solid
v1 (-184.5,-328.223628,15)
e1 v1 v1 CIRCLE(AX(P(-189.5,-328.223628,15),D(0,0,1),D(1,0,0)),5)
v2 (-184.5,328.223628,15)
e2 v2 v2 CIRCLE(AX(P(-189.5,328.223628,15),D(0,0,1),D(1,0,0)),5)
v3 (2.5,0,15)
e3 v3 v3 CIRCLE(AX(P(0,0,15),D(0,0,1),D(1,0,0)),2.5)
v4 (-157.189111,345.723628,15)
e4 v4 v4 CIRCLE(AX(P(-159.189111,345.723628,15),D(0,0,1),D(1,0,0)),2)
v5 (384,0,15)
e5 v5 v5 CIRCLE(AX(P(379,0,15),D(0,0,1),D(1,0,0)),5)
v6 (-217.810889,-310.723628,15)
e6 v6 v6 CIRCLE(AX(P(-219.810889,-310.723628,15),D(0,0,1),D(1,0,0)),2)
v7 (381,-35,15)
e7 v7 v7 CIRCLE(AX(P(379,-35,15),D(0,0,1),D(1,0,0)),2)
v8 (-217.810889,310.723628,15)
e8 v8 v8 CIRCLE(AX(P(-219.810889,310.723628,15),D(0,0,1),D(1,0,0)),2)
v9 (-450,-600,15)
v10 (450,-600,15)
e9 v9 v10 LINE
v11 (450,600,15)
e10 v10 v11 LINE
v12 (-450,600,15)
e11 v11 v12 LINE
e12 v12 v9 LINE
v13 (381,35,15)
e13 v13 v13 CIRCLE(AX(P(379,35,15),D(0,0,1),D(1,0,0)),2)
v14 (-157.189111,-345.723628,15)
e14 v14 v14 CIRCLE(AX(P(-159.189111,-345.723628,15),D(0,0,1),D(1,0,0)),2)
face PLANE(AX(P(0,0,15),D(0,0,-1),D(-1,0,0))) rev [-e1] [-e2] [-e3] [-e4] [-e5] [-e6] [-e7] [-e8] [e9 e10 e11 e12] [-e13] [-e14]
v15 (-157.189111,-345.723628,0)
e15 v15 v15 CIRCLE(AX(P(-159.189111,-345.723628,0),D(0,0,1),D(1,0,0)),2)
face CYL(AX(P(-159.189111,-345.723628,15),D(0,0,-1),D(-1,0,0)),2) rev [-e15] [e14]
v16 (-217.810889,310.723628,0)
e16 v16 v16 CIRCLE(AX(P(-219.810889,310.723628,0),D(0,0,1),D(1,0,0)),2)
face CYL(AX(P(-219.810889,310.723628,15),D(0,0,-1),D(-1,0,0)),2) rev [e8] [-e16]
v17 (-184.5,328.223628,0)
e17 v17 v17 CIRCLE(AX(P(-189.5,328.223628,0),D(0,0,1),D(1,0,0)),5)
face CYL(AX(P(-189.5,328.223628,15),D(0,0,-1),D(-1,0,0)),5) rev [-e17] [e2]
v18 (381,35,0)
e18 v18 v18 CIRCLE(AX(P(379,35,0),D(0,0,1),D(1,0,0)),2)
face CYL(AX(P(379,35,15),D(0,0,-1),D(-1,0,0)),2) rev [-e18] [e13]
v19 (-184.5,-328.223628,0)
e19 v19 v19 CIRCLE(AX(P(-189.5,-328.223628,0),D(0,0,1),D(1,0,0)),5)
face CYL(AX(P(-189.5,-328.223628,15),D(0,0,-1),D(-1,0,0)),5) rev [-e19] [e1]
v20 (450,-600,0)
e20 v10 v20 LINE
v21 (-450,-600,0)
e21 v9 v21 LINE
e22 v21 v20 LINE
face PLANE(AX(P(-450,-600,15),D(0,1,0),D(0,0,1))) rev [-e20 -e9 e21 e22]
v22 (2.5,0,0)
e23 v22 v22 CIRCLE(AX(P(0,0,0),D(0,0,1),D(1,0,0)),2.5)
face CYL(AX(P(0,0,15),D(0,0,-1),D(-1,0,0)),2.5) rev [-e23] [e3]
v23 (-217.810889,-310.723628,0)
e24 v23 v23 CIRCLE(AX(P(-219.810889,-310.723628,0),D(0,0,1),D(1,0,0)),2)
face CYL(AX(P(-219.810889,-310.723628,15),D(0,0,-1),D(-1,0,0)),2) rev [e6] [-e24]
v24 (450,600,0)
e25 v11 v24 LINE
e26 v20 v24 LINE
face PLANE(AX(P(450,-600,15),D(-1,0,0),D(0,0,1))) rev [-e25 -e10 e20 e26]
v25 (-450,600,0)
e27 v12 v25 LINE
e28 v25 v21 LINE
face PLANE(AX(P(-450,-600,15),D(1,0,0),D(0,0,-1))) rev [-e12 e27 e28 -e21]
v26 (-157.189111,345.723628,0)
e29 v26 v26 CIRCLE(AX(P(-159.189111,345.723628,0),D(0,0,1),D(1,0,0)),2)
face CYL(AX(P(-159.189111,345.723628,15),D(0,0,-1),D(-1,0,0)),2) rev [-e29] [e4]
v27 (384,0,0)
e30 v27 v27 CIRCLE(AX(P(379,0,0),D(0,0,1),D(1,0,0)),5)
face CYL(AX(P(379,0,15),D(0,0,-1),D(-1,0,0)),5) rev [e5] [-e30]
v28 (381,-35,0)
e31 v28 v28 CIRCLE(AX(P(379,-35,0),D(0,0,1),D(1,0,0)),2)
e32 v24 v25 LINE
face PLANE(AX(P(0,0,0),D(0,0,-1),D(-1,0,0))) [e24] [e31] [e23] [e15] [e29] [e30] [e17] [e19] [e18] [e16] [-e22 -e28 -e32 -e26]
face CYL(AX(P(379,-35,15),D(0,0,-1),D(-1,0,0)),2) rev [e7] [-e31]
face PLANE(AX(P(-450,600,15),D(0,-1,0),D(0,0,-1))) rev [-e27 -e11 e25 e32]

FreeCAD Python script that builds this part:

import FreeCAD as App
import Part
import Sketcher
from FreeCAD import Vector
Q = App.Units.Quantity


def add_polygon(sketch, points):
    """Adds a closed chain of lines whose ends are joined by coincident constraints."""
    first, n = sketch.GeometryCount, len(points)
    for a, b in zip(points, points[1:] + points[:1]):
        sketch.addGeometry(Part.LineSegment(App.Vector(*a, 0), App.Vector(*b, 0)), False)
    for i in range(n):
        sketch.addConstraint(Sketcher.Constraint("Coincident", first + i, 2, first + (i + 1) % n, 1))

doc = App.newDocument("Part")
body = doc.addObject("PartDesign::Body", "Body")

# Sketch on XY plane
sketch1 = doc.addObject("Sketcher::SketchObject", "Sketch")
body.addObject(sketch1)
sketch1.AttachmentSupport = (doc.XY_Plane, [""])
sketch1.MapMode = "FlatFace"
add_polygon(sketch1, [(-450, 600), (-450, -600), (450, -600), (450, 600)])  # lines 0-3
sketch1.addGeometry(Part.Circle(Vector(-189.5, -328.2, 0), Vector(0, 0, 1), 5), False)  # 4
sketch1.addGeometry(Part.Circle(Vector(-219.8, -310.7, 0), Vector(0, 0, 1), 2), False)  # 5
sketch1.addGeometry(Part.Circle(Vector(-159.2, -345.7, 0), Vector(0, 0, 1), 2), False)  # 6
sketch1.addGeometry(Part.Circle(Vector(379, -35, 0), Vector(0, 0, 1), 2), False)  # 7
sketch1.addGeometry(Part.Circle(Vector(0, 0, 0), Vector(0, 0, 1), 2.5), False)  # 8
sketch1.addGeometry(Part.Circle(Vector(-219.8, 310.7, 0), Vector(0, 0, 1), 2), False)  # 9
sketch1.addGeometry(Part.Circle(Vector(-189.5, 328.2, 0), Vector(0, 0, 1), 5), False)  # 10
sketch1.addGeometry(Part.Circle(Vector(-159.2, 345.7, 0), Vector(0, 0, 1), 2), False)  # 11
sketch1.addGeometry(Part.Circle(Vector(379, 0, 0), Vector(0, 0, 1), 5), False)  # 12
sketch1.addGeometry(Part.Circle(Vector(379, 35, 0), Vector(0, 0, 1), 2), False)  # 13
sketch1.addConstraint([
    Sketcher.Constraint("Vertical", 0),
    Sketcher.Constraint("Horizontal", 1),
    Sketcher.Constraint("Vertical", 2),
    Sketcher.Constraint("Horizontal", 3),
    Sketcher.Constraint("Coincident", 8, 3, -1, 1),
    Sketcher.Constraint("Equal", 5, 6),
    Sketcher.Constraint("Equal", 6, 7),
    Sketcher.Constraint("Equal", 7, 9),
    Sketcher.Constraint("Equal", 4, 10),
    Sketcher.Constraint("Equal", 9, 11),
    Sketcher.Constraint("Equal", 10, 12),
    Sketcher.Constraint("Equal", 11, 13),
    Sketcher.Constraint("Symmetric", 0, 2, 2, 2, -1, 1),
    Sketcher.Constraint("Symmetric", 5, 3, 9, 3, -1),
    Sketcher.Constraint("Symmetric", 4, 3, 10, 3, -1),
    Sketcher.Constraint("Symmetric", 6, 3, 11, 3, -1),
    Sketcher.Constraint("Symmetric", 7, 3, 13, 3, -1),
    Sketcher.Constraint("PointOnObject", 12, 3, -1),
    Sketcher.Constraint("Vertical", 7, 3, 12, 3),
    Sketcher.Constraint("Diameter", 4, Q("10 mm")),
    Sketcher.Constraint("Diameter", 5, Q("4 mm")),
    Sketcher.Constraint("Diameter", 8, Q("5 mm")),
    Sketcher.Constraint("DistanceX", 1, 1, 1, 2, Q("900 mm")),
    Sketcher.Constraint("DistanceY", 0, 2, 0, 1, Q("1200 mm")),
    Sketcher.Constraint("DistanceX", -1, 1, 7, 3, Q("379 mm")),
    Sketcher.Constraint("DistanceY", 7, 3, -1, 1, Q("35 mm")),
    Sketcher.Constraint("DistanceY", 6, 3, 5, 3, Q("35 mm")),
    Sketcher.Constraint("DistanceX", 4, 3, -1, 1, Q("189.5 mm")),
    Sketcher.Constraint("DistanceY", 4, 3, 5, 3, Q("17.5 mm")),
    Sketcher.Constraint("DistanceY", 4, 3, -1, 1, Q("328.223628 mm")),
    Sketcher.Constraint("DistanceX", 5, 3, -1, 1, Q("219.810889 mm")),
    Sketcher.Constraint("DistanceX", 6, 3, -1, 1, Q("159.189111 mm")),
])
pad1 = doc.addObject("PartDesign::Pad", "Pad")
body.addObject(pad1)
pad1.Profile = sketch1
pad1.Length = 15

doc.recompute()
